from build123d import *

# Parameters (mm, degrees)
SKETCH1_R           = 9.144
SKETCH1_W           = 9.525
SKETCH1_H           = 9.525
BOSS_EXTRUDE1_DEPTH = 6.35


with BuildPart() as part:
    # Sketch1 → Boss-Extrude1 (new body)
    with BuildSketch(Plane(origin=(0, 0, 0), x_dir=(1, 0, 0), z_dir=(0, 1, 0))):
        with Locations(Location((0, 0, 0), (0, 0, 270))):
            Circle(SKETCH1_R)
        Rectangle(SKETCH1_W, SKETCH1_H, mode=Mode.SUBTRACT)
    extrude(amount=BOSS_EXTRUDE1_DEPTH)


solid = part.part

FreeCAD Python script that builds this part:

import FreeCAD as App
import Part
import Sketcher
Q = App.Units.Quantity


def add_polygon(sketch, points):
    """Adds a closed chain of lines whose ends are joined by coincident constraints."""
    first, n = sketch.GeometryCount, len(points)
    for a, b in zip(points, points[1:] + points[:1]):
        sketch.addGeometry(Part.LineSegment(App.Vector(*a, 0), App.Vector(*b, 0)), False)
    for i in range(n):
        sketch.addConstraint(Sketcher.Constraint("Coincident", first + i, 2, first + (i + 1) % n, 1))

doc = App.newDocument("Part")
body = doc.addObject("PartDesign::Body", "Body")

sketch1 = body.newObject("Sketcher::SketchObject", "Sketch")
sketch1.AttachmentSupport = (doc.getObject("XZ_Plane"), [""])
sketch1.MapMode = "FlatFace"
sketch1.addGeometry(Part.Circle(App.Vector(0, 0, 0), App.Vector(0, 0, 1), 9), False)
add_polygon(sketch1, [(5, 5), (-5, 5), (-5, -5), (5, -5)])
sketch1.addConstraint(Sketcher.Constraint("Horizontal", 1))
sketch1.addConstraint(Sketcher.Constraint("Vertical", 2))
sketch1.addConstraint(Sketcher.Constraint("Horizontal", 3))
sketch1.addConstraint(Sketcher.Constraint("Vertical", 4))
sketch1.addConstraint(Sketcher.Constraint("Coincident", 0, 3, -1, 1))
sketch1.addConstraint(Sketcher.Constraint("Symmetric", 1, 2, 3, 2, -1, 1))
sketch1.addConstraint(Sketcher.Constraint("Equal", 3, 2))
sketch1.addConstraint(Sketcher.Constraint("Diameter", 0, Q("0.72 in")))
sketch1.addConstraint(Sketcher.Constraint("DistanceX", 1, 2, 1, 1, Q("0.375 in")))
pad1 = body.newObject("PartDesign::Pad", "Pad")
pad1.Profile = sketch1
pad1.Length = Q("0.25 in")
pad1.Reversed = True

doc.recompute()
